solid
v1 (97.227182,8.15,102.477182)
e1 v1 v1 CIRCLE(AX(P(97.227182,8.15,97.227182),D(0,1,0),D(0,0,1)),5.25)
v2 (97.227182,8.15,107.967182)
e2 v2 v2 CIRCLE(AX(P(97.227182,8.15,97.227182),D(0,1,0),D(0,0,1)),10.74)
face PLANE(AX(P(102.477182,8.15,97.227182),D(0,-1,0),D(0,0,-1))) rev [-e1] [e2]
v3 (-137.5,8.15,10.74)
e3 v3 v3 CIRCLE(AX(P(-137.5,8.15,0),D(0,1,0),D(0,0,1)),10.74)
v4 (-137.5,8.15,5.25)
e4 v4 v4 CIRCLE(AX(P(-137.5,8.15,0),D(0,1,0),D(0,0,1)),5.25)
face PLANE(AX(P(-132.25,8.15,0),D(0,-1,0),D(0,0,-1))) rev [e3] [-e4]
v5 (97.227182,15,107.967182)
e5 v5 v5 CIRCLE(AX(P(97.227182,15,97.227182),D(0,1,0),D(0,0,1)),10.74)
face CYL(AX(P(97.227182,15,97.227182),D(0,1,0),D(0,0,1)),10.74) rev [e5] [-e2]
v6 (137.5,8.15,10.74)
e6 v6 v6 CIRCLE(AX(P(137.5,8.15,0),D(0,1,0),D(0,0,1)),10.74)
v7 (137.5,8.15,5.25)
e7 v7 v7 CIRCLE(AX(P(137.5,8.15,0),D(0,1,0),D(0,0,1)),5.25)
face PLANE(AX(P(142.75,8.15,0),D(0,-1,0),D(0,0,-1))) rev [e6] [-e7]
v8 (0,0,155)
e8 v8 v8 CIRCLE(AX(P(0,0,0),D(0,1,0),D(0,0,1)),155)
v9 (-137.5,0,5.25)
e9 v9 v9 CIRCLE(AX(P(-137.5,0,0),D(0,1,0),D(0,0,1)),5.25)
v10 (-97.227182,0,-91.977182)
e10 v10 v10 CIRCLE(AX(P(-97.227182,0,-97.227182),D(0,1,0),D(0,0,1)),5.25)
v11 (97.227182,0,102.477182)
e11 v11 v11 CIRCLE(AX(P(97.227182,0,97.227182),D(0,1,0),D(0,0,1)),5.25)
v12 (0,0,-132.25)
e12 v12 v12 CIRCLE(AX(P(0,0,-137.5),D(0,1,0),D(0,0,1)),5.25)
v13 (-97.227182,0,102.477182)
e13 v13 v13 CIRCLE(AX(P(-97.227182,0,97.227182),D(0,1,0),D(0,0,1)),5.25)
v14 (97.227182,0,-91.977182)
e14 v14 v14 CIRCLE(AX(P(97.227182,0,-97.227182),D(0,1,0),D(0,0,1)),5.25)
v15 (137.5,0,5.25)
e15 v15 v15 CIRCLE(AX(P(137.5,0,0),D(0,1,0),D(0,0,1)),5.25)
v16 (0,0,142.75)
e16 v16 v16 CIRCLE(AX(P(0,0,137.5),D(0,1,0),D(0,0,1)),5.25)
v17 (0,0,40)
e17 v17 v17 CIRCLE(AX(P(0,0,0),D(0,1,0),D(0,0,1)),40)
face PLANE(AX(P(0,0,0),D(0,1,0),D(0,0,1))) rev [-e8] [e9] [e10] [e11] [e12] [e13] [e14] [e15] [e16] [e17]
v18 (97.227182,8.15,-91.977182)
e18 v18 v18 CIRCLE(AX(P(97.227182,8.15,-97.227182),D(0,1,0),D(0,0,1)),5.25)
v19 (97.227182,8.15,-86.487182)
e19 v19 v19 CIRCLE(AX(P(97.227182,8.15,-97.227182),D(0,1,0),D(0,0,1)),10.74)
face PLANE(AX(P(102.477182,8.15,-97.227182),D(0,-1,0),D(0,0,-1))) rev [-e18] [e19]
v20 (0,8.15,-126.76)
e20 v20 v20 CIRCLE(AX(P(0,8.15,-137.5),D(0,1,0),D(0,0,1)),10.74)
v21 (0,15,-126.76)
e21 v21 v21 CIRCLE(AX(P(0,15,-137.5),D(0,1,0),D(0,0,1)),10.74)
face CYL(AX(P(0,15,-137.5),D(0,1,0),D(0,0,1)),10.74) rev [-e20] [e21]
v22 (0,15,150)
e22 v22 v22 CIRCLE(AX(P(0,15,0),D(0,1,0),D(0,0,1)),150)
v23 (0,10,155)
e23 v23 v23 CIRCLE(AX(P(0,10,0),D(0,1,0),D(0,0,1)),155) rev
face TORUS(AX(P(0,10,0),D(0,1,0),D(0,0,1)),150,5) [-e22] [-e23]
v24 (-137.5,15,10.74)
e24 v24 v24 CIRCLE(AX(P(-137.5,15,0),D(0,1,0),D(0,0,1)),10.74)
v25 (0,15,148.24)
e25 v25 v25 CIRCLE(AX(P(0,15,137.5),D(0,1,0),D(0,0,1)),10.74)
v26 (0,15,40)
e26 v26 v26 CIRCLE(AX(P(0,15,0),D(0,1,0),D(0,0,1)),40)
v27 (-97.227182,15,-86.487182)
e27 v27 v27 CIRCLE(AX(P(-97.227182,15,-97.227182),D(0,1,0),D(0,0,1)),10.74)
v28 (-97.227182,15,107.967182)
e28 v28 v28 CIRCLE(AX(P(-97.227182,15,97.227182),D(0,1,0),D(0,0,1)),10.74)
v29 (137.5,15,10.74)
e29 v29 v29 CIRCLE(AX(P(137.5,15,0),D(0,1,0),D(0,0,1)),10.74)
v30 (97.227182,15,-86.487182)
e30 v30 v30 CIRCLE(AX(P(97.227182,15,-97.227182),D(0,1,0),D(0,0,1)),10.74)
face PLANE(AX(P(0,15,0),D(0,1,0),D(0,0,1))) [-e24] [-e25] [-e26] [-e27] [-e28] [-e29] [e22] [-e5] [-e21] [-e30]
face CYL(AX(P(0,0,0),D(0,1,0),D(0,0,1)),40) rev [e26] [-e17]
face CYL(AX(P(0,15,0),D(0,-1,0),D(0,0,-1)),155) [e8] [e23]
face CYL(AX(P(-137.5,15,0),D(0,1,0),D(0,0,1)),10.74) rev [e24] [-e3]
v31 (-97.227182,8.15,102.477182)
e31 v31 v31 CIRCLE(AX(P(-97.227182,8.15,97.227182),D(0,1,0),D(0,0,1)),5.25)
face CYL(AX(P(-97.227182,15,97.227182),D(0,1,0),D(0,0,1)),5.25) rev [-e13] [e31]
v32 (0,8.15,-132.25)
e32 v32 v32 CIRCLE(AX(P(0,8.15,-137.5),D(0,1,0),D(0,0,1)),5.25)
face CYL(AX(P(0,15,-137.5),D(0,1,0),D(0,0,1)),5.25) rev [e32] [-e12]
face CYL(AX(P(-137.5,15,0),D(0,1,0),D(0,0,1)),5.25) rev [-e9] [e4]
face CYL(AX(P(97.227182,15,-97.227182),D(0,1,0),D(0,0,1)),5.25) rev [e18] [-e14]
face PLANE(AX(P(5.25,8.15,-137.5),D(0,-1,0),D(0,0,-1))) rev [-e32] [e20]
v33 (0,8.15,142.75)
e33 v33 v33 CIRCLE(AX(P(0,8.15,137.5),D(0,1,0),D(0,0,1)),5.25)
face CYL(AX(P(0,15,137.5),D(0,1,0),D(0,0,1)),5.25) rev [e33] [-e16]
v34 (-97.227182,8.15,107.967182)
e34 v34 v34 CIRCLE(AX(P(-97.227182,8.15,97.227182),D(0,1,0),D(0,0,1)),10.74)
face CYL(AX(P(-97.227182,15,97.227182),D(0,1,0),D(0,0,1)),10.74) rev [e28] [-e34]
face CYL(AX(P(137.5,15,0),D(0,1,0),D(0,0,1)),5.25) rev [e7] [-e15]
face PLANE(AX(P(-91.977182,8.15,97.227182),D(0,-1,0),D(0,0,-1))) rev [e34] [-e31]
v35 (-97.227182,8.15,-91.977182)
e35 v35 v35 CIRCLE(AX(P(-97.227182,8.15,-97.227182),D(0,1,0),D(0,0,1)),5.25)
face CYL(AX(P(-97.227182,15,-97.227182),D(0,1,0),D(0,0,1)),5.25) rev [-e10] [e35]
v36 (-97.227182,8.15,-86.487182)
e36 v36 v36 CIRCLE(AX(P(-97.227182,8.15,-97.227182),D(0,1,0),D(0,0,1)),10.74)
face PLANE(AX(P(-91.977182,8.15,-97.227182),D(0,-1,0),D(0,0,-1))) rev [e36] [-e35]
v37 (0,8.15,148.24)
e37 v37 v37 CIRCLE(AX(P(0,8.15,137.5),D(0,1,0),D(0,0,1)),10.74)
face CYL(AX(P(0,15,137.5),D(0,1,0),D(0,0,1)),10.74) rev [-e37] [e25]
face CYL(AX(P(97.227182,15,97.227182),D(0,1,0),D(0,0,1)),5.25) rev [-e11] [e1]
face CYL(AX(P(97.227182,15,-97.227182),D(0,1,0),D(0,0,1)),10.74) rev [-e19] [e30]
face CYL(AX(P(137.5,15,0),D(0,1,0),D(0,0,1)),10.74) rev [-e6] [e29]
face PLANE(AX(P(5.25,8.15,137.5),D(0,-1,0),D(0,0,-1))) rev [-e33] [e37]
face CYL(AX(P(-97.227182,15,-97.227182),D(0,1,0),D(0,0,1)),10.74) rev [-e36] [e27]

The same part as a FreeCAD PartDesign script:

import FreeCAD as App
import Part
import Sketcher
Q = App.Units.Quantity


def edges_at(feature, points):
    """Names of the edges that pass closest to the given points."""
    edges = feature.Shape.Edges
    near = lambda p: min(range(len(edges)), key=lambda i: edges[i].distToShape(Part.Vertex(*p))[0])
    return sorted({f"Edge{near(p) + 1}" for p in points})

doc = App.newDocument("Part")
params = doc.addObject("Spreadsheet::Sheet", "Params")
for row, (alias, value) in enumerate([
    ("sketch1_diameter", "310 mm"),
    ("pad1_length", "15 mm"),
    ("sketch2_diameter", "10.5 mm"),
    ("hole_diameter", "10.5 mm"),
    ("hole_cbore_diameter", "21.48 mm"),
    ("hole_cbore_depth", "6.85 mm"),
    ("sketch3_diameter", "80 mm"),
    ("pocket1_length", "15 mm"),
    ("fillet_radius", "5 mm"),
], start=1):
    params.set(f"A{row}", alias)
    params.set(f"B{row}", "=" + value)
    params.setAlias(f"B{row}", alias)

body = doc.addObject("PartDesign::Body", "Body")

# Sketch on XZ plane
sketch1 = body.newObject("Sketcher::SketchObject", "Sketch")
sketch1.AttachmentSupport = (doc.getObject("XZ_Plane"), [""])
sketch1.MapMode = "FlatFace"
sketch1.addGeometry(Part.Circle(App.Vector(0, 0, 0), App.Vector(0, 0, 1), 155), False)
sketch1.addConstraint([
    Sketcher.Constraint("Coincident", 0, 3, -1, 1),
    Sketcher.Constraint("Diameter", 0, Q("310 mm")),
])
sketch1.setExpression("Constraints[1]", "Params.sketch1_diameter")
pad1 = body.newObject("PartDesign::Pad", "Pad")
pad1.Profile = sketch1
pad1.setExpression("Length", "Params.pad1_length")
pad1.Reversed = True

# Sketch on XZ plane
sketch2 = body.newObject("Sketcher::SketchObject", "Sketch001")
sketch2.AttachmentSupport = (doc.getObject("XZ_Plane"), [""])
sketch2.MapMode = "FlatFace"
sketch2.AttachmentOffset = App.Placement(App.Vector(0, 0, -15), App.Rotation())
sketch2.addGeometry(Part.Circle(App.Vector(0, -138, 0), App.Vector(0, 0, 1), 5), False)
sketch2.addConstraint([
    Sketcher.Constraint("PointOnObject", 0, 3, -2),
    Sketcher.Constraint("Diameter", 0, Q("10.5 mm")),
    Sketcher.Constraint("DistanceY", 0, 3, -1, 1, Q("137.5 mm")),
])
sketch2.setExpression("Constraints[1]", "Params.sketch2_diameter")
doc.recompute()
hole = body.newObject("PartDesign::Hole", "Hole")
hole.Profile = sketch2
hole.ThreadType = "None"
hole.setExpression("Diameter", "Params.hole_diameter")
hole.DepthType = "ThroughAll"
hole.HoleCutType = "Counterbore"
hole.setExpression("HoleCutDiameter", "Params.hole_cbore_diameter")
hole.setExpression("HoleCutDepth", "Params.hole_cbore_depth")
hole.Reversed = True
doc.recompute()

polarpattern = body.newObject("PartDesign::PolarPattern", "PolarPattern")
polarpattern.Originals = [hole]
polarpattern.Axis = (doc.getObject("Y_Axis"), [""])
polarpattern.Angle = 360
polarpattern.Occurrences = 8
body.Tip = polarpattern

# Sketch on XZ plane
sketch3 = body.newObject("Sketcher::SketchObject", "Sketch002")
sketch3.AttachmentSupport = (doc.getObject("XZ_Plane"), [""])
sketch3.MapMode = "FlatFace"
sketch3.AttachmentOffset = App.Placement(App.Vector(0, 0, -15), App.Rotation())
sketch3.addGeometry(Part.Circle(App.Vector(0, 0, 0), App.Vector(0, 0, 1), 40), False)
sketch3.addConstraint([
    Sketcher.Constraint("Coincident", 0, 3, -1, 1),
    Sketcher.Constraint("Diameter", 0, Q("80 mm")),
])
sketch3.setExpression("Constraints[1]", "Params.sketch3_diameter")
pocket1 = body.newObject("PartDesign::Pocket", "Pocket")
pocket1.Profile = sketch3
pocket1.setExpression("Length", "Params.pocket1_length")
pocket1.Reversed = True
doc.recompute()

fillet = body.newObject("PartDesign::Fillet", "Fillet")
fillet.Base = (pocket1, edges_at(pocket1, [(0, 15, -155)]))
fillet.setExpression("Radius", "Params.fillet_radius")

doc.recompute()
